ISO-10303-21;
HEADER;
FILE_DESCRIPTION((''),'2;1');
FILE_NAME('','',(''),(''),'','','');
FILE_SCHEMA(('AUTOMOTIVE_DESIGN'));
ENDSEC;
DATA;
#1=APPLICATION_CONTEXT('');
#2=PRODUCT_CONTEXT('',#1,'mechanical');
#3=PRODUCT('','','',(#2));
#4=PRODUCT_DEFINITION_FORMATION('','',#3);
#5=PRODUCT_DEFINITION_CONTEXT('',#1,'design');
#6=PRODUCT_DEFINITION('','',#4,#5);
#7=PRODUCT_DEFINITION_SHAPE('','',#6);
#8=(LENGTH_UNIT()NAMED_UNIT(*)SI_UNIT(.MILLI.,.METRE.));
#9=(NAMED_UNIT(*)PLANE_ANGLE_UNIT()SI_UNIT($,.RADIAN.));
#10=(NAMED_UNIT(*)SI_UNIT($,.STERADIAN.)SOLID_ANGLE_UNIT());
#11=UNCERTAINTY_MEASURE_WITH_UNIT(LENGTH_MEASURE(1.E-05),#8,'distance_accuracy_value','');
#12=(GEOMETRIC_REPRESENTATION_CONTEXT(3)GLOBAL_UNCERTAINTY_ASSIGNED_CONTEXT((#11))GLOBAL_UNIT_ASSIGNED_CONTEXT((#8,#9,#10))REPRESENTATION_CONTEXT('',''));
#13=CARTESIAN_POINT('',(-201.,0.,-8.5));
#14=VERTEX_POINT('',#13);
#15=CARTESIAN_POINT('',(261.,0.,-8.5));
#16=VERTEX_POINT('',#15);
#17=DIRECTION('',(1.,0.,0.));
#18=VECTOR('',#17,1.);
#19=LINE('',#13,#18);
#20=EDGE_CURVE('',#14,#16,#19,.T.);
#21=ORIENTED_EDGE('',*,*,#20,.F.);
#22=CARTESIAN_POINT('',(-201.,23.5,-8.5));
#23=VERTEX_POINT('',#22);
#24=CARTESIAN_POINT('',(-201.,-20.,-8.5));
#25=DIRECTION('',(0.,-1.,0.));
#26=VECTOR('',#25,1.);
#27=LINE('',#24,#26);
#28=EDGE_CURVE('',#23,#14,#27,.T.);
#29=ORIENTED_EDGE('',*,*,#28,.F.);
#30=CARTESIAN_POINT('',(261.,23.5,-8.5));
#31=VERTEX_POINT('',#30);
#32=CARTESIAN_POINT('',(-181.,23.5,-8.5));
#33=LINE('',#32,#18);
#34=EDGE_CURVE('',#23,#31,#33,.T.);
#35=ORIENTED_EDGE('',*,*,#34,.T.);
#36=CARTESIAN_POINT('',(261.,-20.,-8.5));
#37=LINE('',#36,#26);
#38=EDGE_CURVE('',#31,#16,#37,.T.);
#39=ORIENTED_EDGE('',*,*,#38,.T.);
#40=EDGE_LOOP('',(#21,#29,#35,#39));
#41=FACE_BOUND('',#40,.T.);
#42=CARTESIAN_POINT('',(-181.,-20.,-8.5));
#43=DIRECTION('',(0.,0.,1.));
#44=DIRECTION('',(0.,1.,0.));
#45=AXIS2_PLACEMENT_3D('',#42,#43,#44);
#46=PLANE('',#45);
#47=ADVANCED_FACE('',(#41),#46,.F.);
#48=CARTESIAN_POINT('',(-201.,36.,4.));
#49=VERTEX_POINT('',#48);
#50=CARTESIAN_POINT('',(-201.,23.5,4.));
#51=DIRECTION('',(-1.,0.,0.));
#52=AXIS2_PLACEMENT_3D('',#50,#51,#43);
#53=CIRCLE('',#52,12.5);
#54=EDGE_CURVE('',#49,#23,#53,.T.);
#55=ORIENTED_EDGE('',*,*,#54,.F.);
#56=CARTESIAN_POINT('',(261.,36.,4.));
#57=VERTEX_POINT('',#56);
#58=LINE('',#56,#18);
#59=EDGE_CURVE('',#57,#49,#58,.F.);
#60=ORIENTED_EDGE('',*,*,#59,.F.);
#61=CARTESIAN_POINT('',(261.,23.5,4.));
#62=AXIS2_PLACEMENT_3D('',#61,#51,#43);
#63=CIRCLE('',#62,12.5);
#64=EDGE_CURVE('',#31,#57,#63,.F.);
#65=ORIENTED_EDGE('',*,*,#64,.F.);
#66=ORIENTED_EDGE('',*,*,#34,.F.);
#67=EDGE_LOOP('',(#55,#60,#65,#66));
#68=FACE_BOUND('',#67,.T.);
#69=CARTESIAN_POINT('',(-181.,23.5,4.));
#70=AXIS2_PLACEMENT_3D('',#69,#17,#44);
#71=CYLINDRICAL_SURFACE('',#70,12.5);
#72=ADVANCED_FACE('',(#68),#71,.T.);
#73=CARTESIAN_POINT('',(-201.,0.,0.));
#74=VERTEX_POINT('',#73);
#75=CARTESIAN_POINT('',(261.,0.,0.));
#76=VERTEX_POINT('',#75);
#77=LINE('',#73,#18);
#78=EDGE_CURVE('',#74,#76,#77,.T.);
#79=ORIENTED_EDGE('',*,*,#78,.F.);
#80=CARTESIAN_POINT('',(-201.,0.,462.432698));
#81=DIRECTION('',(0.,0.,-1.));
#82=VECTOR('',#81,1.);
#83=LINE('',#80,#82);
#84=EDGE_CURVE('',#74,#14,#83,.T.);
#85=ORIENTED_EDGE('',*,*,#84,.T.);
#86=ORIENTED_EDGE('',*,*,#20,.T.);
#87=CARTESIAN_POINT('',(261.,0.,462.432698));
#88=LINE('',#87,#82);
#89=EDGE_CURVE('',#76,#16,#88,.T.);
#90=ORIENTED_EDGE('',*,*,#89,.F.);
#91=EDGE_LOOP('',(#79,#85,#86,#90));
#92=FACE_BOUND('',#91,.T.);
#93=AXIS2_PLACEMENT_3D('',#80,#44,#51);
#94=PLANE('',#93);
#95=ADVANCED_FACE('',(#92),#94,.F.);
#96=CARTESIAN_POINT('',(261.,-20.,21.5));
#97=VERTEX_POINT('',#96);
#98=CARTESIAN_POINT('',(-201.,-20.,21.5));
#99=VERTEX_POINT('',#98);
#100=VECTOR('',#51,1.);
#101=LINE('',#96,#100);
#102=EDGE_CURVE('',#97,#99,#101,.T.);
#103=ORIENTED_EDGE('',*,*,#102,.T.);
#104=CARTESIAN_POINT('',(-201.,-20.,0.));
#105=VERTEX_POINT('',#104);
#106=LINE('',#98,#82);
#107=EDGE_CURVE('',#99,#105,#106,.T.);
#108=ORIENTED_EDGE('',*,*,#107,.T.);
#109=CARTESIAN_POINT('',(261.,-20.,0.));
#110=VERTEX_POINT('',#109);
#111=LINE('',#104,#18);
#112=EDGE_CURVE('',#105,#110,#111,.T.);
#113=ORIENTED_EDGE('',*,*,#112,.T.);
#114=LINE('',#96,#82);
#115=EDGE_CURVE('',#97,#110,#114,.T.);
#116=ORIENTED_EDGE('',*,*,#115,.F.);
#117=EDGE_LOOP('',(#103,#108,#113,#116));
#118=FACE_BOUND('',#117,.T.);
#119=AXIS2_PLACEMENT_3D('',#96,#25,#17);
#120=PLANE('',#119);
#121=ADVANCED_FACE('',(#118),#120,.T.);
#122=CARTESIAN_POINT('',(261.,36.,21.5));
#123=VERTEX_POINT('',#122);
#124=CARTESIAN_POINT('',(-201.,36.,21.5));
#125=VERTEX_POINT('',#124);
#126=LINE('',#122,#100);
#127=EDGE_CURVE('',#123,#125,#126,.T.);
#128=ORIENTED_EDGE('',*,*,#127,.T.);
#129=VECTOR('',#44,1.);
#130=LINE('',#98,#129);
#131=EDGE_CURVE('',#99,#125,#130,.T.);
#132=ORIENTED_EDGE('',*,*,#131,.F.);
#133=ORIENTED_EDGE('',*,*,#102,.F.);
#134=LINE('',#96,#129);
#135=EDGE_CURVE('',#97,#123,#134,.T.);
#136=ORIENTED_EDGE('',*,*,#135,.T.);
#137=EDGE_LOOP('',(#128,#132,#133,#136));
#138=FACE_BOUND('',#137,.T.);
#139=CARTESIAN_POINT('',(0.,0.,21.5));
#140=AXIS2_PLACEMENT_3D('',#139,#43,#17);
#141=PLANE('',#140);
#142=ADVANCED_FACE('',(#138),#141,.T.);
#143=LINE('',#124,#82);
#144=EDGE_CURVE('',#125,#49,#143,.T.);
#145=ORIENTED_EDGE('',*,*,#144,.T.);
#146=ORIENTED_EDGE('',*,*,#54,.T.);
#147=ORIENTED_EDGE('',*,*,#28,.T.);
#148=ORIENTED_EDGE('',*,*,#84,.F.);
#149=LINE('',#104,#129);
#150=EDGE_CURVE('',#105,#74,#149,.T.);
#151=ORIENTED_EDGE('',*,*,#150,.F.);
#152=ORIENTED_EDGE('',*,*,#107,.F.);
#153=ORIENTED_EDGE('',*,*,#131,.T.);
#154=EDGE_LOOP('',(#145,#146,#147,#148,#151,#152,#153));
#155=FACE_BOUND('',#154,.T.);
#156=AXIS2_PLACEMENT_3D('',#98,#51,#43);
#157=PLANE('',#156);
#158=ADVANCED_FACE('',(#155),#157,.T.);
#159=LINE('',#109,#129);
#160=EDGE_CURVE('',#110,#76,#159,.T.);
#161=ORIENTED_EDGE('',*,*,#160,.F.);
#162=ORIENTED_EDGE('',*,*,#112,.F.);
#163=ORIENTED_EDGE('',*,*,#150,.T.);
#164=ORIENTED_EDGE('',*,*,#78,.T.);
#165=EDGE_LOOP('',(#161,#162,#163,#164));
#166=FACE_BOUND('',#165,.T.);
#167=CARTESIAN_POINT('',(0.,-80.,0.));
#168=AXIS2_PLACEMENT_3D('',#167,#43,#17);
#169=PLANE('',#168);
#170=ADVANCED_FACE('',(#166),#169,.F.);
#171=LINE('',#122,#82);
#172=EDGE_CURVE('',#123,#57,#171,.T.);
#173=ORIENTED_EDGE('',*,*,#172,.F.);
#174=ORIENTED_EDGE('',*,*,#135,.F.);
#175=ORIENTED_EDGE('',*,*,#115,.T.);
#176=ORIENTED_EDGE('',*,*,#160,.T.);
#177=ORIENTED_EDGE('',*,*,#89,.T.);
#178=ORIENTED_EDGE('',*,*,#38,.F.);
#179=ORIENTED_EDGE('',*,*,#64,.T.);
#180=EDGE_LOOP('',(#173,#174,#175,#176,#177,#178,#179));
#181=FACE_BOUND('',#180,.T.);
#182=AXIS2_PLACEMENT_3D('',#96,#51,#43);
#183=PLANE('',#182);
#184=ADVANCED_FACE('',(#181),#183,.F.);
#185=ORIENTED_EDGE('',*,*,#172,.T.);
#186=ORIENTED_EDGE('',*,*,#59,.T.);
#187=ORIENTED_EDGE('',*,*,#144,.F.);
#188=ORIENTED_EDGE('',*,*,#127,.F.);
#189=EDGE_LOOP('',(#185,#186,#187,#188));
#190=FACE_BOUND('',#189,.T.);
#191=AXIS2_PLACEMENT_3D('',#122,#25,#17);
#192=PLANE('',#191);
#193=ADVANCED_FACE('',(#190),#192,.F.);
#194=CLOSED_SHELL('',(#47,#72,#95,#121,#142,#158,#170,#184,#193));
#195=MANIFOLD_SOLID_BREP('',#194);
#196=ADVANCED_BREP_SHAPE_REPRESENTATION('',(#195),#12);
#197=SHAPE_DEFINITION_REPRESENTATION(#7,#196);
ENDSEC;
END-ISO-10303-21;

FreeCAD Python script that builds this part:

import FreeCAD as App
import Part
import Sketcher

V = App.Vector


def edges_at(feature, points):
    """Names of the edges that pass closest to the given points."""
    edges = feature.Shape.Edges
    near = lambda p: min(range(len(edges)), key=lambda i: edges[i].distToShape(Part.Vertex(*p))[0])
    return sorted({f"Edge{near(p) + 1}" for p in points})


def add_polygon(sketch, points):
    """Adds a closed chain of lines whose ends are joined by coincident constraints."""
    first, n = sketch.GeometryCount, len(points)
    for a, b in zip(points, points[1:] + points[:1]):
        sketch.addGeometry(Part.LineSegment(App.Vector(*a, 0), App.Vector(*b, 0)), False)
    for i in range(n):
        sketch.addConstraint(Sketcher.Constraint("Coincident", first + i, 2, first + (i + 1) % n, 1))

doc = App.newDocument("Part")
body = doc.addObject("PartDesign::Body", "Body")

# Sketch on XY plane
sketch1 = body.newObject("Sketcher::SketchObject", "Sketch")
sketch1.AttachmentSupport = (doc.getObject("XY_Plane"), [""])
sketch1.MapMode = "FlatFace"
add_polygon(sketch1, [(-201, 36), (-201, -20), (261, -20), (261, 36)])  # lines 0-3
sketch1.addConstraint([
    Sketcher.Constraint("Vertical", 0),
    Sketcher.Constraint("Horizontal", 1),
    Sketcher.Constraint("Vertical", 2),
    Sketcher.Constraint("Horizontal", 3),
    Sketcher.Constraint("DistanceX", 1, 1, 1, 2, 462.0),
    Sketcher.Constraint("DistanceY", 0, 2, 0, 1, 56.0),
    Sketcher.Constraint("DistanceX", 0, 2, -1, 1, 201.0),
    Sketcher.Constraint("DistanceY", 0, 2, -1, 1, 20.0),
])
pad1 = body.newObject("PartDesign::Pad", "Pad")
pad1.Profile = sketch1
pad1.Type = "TwoLengths"
pad1.Length = 21.5
pad1.Length2 = 8.5

# Sketch on XY plane
sketch2 = body.newObject("Sketcher::SketchObject", "Sketch001")
sketch2.AttachmentSupport = (doc.getObject("XY_Plane"), [""])
sketch2.MapMode = "FlatFace"
add_polygon(sketch2, [(261, 0), (261, -20), (-201, -20), (-201, 0)])  # lines 0-3
sketch2.addConstraint([
    Sketcher.Constraint("Vertical", 0),
    Sketcher.Constraint("Horizontal", 1),
    Sketcher.Constraint("Vertical", 2),
    Sketcher.Constraint("Horizontal", 3),
    Sketcher.Constraint("PointOnObject", 2, 2, -1),
    Sketcher.Constraint("DistanceX", 1, 2, 1, 1, 462.0),
    Sketcher.Constraint("DistanceY", 0, 2, 0, 1, 20.0),
    Sketcher.Constraint("DistanceX", -1, 1, 0, 2, 261.0),
])
pocket1 = body.newObject("PartDesign::Pocket", "Pocket")
pocket1.Profile = sketch2
pocket1.Length = 8.5
doc.recompute()

fillet = body.newObject("PartDesign::Fillet", "Fillet")
fillet.Base = (pocket1, edges_at(pocket1, [(30, 36, -8.5)]))
fillet.Radius = 12.5

doc.recompute()
